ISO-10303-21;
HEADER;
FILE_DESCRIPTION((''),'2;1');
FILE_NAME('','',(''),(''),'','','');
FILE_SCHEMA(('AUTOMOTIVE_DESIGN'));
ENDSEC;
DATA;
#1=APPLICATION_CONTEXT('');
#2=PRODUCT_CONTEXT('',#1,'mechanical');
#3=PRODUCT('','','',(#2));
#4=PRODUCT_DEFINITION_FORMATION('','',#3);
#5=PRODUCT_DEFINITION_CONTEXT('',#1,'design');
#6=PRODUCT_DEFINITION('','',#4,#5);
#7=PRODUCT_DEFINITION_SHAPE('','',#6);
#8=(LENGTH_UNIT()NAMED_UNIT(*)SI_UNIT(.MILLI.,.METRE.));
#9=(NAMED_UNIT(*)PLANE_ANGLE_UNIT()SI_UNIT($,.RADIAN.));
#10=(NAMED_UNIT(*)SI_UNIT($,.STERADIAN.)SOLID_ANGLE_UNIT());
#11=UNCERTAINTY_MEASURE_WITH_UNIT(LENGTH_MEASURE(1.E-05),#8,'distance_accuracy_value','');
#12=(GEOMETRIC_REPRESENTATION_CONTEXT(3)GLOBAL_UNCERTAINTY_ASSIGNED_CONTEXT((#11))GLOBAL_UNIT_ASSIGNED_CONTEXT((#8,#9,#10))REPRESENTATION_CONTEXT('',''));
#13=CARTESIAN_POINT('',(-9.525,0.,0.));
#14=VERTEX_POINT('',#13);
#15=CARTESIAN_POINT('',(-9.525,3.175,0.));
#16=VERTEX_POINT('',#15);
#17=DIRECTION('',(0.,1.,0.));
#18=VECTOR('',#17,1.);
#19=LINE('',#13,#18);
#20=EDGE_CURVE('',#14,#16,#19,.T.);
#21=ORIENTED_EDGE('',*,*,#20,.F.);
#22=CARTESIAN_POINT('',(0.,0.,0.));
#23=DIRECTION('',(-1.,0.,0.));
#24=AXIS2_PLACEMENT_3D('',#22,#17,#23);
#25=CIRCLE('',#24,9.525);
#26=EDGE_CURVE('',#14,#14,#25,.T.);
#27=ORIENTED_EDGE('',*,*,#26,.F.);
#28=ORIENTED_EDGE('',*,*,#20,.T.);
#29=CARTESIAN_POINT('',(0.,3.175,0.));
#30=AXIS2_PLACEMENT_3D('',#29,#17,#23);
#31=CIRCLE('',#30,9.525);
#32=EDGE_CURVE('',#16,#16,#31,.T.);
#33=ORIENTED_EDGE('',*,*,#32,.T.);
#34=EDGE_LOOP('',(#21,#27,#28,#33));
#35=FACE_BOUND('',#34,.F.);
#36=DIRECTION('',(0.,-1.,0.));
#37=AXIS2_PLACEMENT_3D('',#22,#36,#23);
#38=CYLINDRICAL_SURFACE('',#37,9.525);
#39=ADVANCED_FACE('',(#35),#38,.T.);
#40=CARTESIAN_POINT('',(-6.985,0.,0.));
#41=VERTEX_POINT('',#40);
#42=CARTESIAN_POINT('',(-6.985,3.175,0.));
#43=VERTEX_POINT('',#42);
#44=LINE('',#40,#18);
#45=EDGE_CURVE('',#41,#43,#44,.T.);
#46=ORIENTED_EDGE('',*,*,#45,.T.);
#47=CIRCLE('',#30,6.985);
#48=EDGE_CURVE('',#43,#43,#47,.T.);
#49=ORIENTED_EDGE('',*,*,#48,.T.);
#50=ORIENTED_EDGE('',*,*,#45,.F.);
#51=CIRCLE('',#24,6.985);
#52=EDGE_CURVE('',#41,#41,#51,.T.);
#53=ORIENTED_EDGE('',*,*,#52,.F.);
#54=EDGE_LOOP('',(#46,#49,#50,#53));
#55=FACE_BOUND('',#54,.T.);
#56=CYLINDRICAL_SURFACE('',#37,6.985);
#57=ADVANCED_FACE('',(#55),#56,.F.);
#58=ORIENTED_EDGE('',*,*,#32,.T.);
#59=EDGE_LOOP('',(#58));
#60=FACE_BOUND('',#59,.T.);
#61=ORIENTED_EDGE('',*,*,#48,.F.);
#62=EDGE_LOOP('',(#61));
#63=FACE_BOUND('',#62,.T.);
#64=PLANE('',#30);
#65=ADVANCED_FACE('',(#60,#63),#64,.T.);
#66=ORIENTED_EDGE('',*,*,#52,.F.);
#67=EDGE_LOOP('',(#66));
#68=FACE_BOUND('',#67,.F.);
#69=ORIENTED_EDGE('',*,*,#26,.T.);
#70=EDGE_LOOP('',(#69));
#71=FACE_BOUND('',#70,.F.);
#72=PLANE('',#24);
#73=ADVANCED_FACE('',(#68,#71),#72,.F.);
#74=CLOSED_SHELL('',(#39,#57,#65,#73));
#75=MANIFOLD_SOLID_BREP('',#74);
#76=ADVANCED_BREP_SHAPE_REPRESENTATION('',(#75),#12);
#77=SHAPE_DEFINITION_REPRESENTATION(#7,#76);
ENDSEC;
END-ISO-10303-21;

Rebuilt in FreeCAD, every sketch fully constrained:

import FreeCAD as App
import Part
import Sketcher
Q = App.Units.Quantity

doc = App.newDocument("Part")
body = doc.addObject("PartDesign::Body", "Body")

# Sketch on XZ plane
sketch1 = doc.addObject("Sketcher::SketchObject", "Sketch")
body.addObject(sketch1)
sketch1.AttachmentSupport = (doc.XZ_Plane, [""])
sketch1.MapMode = "FlatFace"
sketch1.addGeometry(Part.Circle(App.Vector(0, 0, 0), App.Vector(0, 0, 1), 10), False)
sketch1.addGeometry(Part.Circle(App.Vector(0, 0, 0), App.Vector(0, 0, 1), 7), False)
sketch1.addConstraint(Sketcher.Constraint("Coincident", 0, 3, -1, 1))
sketch1.addConstraint(Sketcher.Constraint("Coincident", 1, 3, -1, 1))
sketch1.addConstraint(Sketcher.Constraint("Diameter", 0, Q("0.75 in")))
sketch1.addConstraint(Sketcher.Constraint("Diameter", 1, Q("0.55 in")))
pad1 = doc.addObject("PartDesign::Pad", "Pad")
body.addObject(pad1)
pad1.Profile = sketch1
pad1.Length = Q("0.125 in")
pad1.Reversed = True

doc.recompute()
